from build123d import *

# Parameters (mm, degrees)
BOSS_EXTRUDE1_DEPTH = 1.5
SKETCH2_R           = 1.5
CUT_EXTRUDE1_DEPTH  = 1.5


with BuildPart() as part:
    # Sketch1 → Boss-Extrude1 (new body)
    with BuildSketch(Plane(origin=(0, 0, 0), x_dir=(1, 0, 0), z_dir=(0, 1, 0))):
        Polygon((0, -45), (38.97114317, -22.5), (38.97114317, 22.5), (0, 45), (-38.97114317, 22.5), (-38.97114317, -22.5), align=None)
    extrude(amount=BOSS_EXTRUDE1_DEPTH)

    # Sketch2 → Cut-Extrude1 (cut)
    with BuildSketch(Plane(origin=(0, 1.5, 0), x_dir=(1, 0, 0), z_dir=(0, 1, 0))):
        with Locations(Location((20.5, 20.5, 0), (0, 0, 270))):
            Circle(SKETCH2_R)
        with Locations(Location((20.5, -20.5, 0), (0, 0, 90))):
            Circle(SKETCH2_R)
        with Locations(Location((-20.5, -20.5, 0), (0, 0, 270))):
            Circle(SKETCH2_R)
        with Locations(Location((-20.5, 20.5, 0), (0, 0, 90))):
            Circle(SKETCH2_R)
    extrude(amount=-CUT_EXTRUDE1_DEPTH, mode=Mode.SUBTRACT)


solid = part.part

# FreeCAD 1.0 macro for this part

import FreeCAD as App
import Part
import Sketcher
from FreeCAD import Vector
Q = App.Units.Quantity

doc = App.newDocument("Part")
params = doc.addObject("Spreadsheet::Sheet", "Params")
for row, (alias, value) in enumerate([
    ("sketch1_height", "45 mm"),
    ("sketch1_length", "45 mm"),
    ("pad1_length", "1.5 mm"),
    ("sketch2_diameter", "3 mm"),
    ("pocket1_length", "1.5 mm"),
], start=1):
    params.set(f"A{row}", alias)
    params.set(f"B{row}", "=" + value)
    params.setAlias(f"B{row}", alias)

body = doc.addObject("PartDesign::Body", "Body")

# Sketch on XZ plane
sketch1 = doc.addObject("Sketcher::SketchObject", "Sketch")
body.addObject(sketch1)
sketch1.AttachmentSupport = (doc.XZ_Plane, [""])
sketch1.MapMode = "FlatFace"
sketch1.addGeometry([
    Part.LineSegment(Vector(0, 45, 0), Vector(39, 22, 0)),  # 0
    Part.LineSegment(Vector(39, 22, 0), Vector(39, -22, 0)),  # 1
    Part.LineSegment(Vector(39, -22, 0), Vector(0, -45, 0)),  # 2
    Part.LineSegment(Vector(0, -45, 0), Vector(-39, -22, 0)),  # 3
    Part.LineSegment(Vector(-39, -22, 0), Vector(-39, 22, 0)),  # 4
    Part.LineSegment(Vector(-39, 22, 0), Vector(0, 45, 0)),  # 5
], False)
sketch1.addConstraint([
    Sketcher.Constraint("Coincident", 0, 2, 1, 1),
    Sketcher.Constraint("Coincident", 1, 2, 2, 1),
    Sketcher.Constraint("Coincident", 2, 2, 3, 1),
    Sketcher.Constraint("Coincident", 3, 2, 4, 1),
    Sketcher.Constraint("Coincident", 4, 2, 5, 1),
    Sketcher.Constraint("Coincident", 5, 2, 0, 1),
    Sketcher.Constraint("Vertical", 1),
    Sketcher.Constraint("Vertical", 4),
    Sketcher.Constraint("Symmetric", 0, 2, 3, 2, -1, 1),
    Sketcher.Constraint("Symmetric", 2, 2, 5, 2, -1, 1),
    Sketcher.Constraint("PointOnObject", 2, 2, -2),
    Sketcher.Constraint("Parallel", 2, 5),
    Sketcher.Constraint("Horizontal", 1, 2, 3, 2),
    Sketcher.Constraint("DistanceY", 1, 2, 1, 1, 45.0),
    Sketcher.Constraint("Angle", 0, Q("-30 deg")),
    Sketcher.Constraint("Distance", 0, 45.0),
])
sketch1.setExpression("Constraints[13]", "Params.sketch1_height")
sketch1.setExpression("Constraints[15]", "Params.sketch1_length")
pad1 = doc.addObject("PartDesign::Pad", "Pad")
body.addObject(pad1)
pad1.Profile = sketch1
pad1.setExpression("Length", "Params.pad1_length")
pad1.Reversed = True

# Sketch on XZ plane
sketch2 = doc.addObject("Sketcher::SketchObject", "Sketch001")
body.addObject(sketch2)
sketch2.AttachmentSupport = (doc.XZ_Plane, [""])
sketch2.MapMode = "FlatFace"
sketch2.AttachmentOffset = App.Placement(Vector(0, 0, -1.5), App.Rotation())
sketch2.addGeometry([
    Part.Circle(Vector(20.5, -20.5, 0), Vector(0, 0, 1), 1.5),
    Part.Circle(Vector(20.5, 20.5, 0), Vector(0, 0, 1), 1.5),
    Part.Circle(Vector(-20.5, 20.5, 0), Vector(0, 0, 1), 1.5),
    Part.Circle(Vector(-20.5, -20.5, 0), Vector(0, 0, 1), 1.5),
], False)
sketch2.addConstraint([
    Sketcher.Constraint("Equal", 0, 1),
    Sketcher.Constraint("Equal", 1, 2),
    Sketcher.Constraint("Equal", 2, 3),
    Sketcher.Constraint("Symmetric", 0, 3, 2, 3, -1, 1),
    Sketcher.Constraint("Symmetric", 1, 3, 3, 3, -1, 1),
    Sketcher.Constraint("Symmetric", 1, 3, 2, 3, -2),
    Sketcher.Constraint("Diameter", 0, 3.0),
    Sketcher.Constraint("DistanceY", 0, 3, 1, 3, 41.0),
    Sketcher.Constraint("DistanceX", 2, 3, 1, 3, 41.0),
])
sketch2.setExpression("Constraints[6]", "Params.sketch2_diameter")
pocket1 = doc.addObject("PartDesign::Pocket", "Pocket")
body.addObject(pocket1)
pocket1.Profile = sketch2
pocket1.setExpression("Length", "Params.pocket1_length")
pocket1.Reversed = True

doc.recompute()
